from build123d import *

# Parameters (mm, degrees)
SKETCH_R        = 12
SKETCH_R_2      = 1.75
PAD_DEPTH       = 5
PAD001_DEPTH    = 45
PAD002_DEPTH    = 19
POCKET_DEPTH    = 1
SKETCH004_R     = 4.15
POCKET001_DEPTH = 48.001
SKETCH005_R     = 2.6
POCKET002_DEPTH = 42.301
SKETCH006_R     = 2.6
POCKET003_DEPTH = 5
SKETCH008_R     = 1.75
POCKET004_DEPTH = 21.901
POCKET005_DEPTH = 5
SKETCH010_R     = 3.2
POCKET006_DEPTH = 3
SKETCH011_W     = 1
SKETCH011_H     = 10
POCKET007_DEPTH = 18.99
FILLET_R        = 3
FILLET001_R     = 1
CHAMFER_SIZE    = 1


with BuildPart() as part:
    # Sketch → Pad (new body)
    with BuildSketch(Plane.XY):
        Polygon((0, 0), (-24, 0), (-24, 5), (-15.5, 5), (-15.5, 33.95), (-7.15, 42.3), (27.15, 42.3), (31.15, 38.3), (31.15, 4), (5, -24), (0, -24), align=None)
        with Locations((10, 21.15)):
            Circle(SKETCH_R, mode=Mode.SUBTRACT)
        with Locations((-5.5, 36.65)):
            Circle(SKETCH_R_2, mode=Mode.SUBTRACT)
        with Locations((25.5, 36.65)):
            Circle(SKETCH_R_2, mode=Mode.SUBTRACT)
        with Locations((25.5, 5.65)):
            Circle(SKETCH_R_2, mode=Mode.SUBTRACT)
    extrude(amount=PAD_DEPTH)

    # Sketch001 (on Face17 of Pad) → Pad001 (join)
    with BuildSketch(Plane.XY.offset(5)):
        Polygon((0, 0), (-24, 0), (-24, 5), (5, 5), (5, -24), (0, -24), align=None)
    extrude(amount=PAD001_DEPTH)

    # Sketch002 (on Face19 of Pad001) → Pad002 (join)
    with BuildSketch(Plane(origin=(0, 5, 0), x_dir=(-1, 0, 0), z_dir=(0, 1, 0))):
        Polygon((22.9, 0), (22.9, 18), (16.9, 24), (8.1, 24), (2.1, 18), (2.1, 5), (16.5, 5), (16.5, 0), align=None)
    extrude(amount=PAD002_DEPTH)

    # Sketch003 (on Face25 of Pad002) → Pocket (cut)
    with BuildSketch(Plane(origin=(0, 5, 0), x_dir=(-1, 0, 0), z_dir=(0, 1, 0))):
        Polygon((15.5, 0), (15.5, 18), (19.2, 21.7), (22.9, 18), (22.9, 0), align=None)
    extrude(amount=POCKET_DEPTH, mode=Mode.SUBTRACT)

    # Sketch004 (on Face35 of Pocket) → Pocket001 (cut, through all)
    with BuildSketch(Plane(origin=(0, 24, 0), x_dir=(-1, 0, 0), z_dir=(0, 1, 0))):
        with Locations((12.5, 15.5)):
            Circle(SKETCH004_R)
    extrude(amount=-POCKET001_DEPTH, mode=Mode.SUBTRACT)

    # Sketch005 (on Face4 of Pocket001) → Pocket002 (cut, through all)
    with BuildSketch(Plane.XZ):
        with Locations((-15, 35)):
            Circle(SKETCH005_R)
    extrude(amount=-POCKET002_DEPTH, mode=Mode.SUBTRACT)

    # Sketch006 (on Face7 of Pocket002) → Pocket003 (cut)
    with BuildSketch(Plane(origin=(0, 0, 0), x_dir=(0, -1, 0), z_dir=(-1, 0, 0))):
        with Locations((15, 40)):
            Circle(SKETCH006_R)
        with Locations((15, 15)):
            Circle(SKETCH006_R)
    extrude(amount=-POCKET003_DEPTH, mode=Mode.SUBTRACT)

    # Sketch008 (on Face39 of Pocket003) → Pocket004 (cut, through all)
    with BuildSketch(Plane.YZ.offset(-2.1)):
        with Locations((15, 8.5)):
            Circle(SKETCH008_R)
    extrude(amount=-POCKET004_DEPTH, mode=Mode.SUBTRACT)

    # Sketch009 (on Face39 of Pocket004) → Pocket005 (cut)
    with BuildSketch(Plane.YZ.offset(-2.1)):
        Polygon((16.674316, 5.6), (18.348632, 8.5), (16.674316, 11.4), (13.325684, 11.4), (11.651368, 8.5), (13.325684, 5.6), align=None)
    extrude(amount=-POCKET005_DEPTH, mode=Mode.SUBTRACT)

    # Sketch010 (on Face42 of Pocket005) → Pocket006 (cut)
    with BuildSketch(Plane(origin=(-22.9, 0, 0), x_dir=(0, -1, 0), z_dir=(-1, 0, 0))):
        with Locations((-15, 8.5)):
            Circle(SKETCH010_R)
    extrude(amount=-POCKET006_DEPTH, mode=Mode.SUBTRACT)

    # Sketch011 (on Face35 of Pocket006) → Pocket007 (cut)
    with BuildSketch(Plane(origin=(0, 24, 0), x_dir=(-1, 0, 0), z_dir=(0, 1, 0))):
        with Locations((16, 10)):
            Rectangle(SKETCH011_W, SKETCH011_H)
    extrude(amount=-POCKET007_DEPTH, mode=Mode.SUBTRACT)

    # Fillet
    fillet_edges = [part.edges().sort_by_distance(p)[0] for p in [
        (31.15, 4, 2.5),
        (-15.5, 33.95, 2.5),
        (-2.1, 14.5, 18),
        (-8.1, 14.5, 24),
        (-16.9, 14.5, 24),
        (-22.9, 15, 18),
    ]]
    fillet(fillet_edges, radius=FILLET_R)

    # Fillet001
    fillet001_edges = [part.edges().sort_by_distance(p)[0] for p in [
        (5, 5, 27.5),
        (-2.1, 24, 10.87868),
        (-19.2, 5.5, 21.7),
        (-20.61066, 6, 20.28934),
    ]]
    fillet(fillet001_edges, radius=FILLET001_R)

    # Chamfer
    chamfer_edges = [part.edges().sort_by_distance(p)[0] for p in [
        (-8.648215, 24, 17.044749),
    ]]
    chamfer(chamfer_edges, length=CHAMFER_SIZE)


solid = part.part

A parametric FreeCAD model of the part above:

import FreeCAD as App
import Part
import Sketcher
from FreeCAD import Vector
Q = App.Units.Quantity


def edges_at(feature, points):
    """Names of the edges that pass closest to the given points."""
    edges = feature.Shape.Edges
    near = lambda p: min(range(len(edges)), key=lambda i: edges[i].distToShape(Part.Vertex(*p))[0])
    return sorted({f"Edge{near(p) + 1}" for p in points})

doc = App.newDocument("Part")
body = doc.addObject("PartDesign::Body", "Body")

sketch1 = doc.addObject("Sketcher::SketchObject", "Sketch")
body.addObject(sketch1)
sketch1.AttachmentSupport = (doc.XY_Plane, [""])
sketch1.MapMode = "FlatFace"
sketch1.addGeometry([
    Part.LineSegment(Vector(-24, 0, 0), Vector(0, 0, 0)),
    Part.LineSegment(Vector(0, 0, 0), Vector(0, -24, 0)),
    Part.LineSegment(Vector(0, -24, 0), Vector(5, -24, 0)),
    Part.LineSegment(Vector(5, -24, 0), Vector(31.15, 4, 0)),
    Part.LineSegment(Vector(31.15, 4, 0), Vector(31.15, 38.3, 0)),
    Part.LineSegment(Vector(31.15, 38.3, 0), Vector(27.15, 42.3, 0)),
    Part.LineSegment(Vector(27.15, 42.3, 0), Vector(-7.15, 42.3, 0)),
    Part.LineSegment(Vector(-7.15, 42.3, 0), Vector(-15.5, 33.95, 0)),
    Part.LineSegment(Vector(-15.5, 33.95, 0), Vector(-15.5, 5, 0)),
    Part.LineSegment(Vector(-15.5, 5, 0), Vector(-24, 5, 0)),
    Part.LineSegment(Vector(-24, 5, 0), Vector(-24, 0, 0)),
    Part.Circle(Vector(25.5, 5.65, 0), Vector(0, 0, 1), 1.75),
    Part.Circle(Vector(25.5, 36.65, 0), Vector(0, 0, 1), 1.75),
    Part.Circle(Vector(10, 21.15, 0), Vector(0, 0, 1), 12),
    Part.Circle(Vector(-5.5, 36.65, 0), Vector(0, 0, 1), 1.75),
], False)
sketch1.addConstraint([
    Sketcher.Constraint("Coincident", 0, 2, 1, 1),
    Sketcher.Constraint("Coincident", 1, 2, 2, 1),
    Sketcher.Constraint("Coincident", 2, 2, 3, 1),
    Sketcher.Constraint("Coincident", 3, 2, 4, 1),
    Sketcher.Constraint("Coincident", 4, 2, 5, 1),
    Sketcher.Constraint("Coincident", 5, 2, 6, 1),
    Sketcher.Constraint("Coincident", 6, 2, 7, 1),
    Sketcher.Constraint("Coincident", 7, 2, 8, 1),
    Sketcher.Constraint("Coincident", 8, 2, 9, 1),
    Sketcher.Constraint("Coincident", 9, 2, 10, 1),
    Sketcher.Constraint("Coincident", 10, 2, 0, 1),
    Sketcher.Constraint("Horizontal", 0),
    Sketcher.Constraint("Vertical", 1),
    Sketcher.Constraint("Horizontal", 2),
    Sketcher.Constraint("Vertical", 4),
    Sketcher.Constraint("Horizontal", 6),
    Sketcher.Constraint("Vertical", 8),
    Sketcher.Constraint("Horizontal", 9),
    Sketcher.Constraint("Vertical", 10),
    Sketcher.Constraint("Coincident", 0, 2, -1, 1),
    Sketcher.Constraint("Equal", 11, 12),
    Sketcher.Constraint("Equal", 12, 14),
    Sketcher.Constraint("Perpendicular", 5, 7),
    Sketcher.Constraint("Horizontal", 12, 3, 14, 3),
    Sketcher.Constraint("Vertical", 11, 3, 12, 3),
    Sketcher.Constraint("Equal", 0, 1),
    Sketcher.Constraint("Equal", 6, 4),
    Sketcher.Constraint("Equal", 2, 10),
    Sketcher.Constraint("Diameter", 13, 24.0),
    Sketcher.Constraint("Diameter", 11, 3.5),
    Sketcher.Constraint("DistanceX", 0, 1, 0, 2, 24.0),
    Sketcher.Constraint("DistanceX", 2, 1, 2, 2, 5.0),
    Sketcher.Constraint("Angle", 5, Q("135 deg")),
    Sketcher.Constraint("DistanceX", 6, 2, 6, 1, 34.3),
    Sketcher.Constraint("DistanceX", 9, 2, 9, 1, 8.5),
    Sketcher.Constraint("DistanceX", -1, 1, 13, 3, 10.0),
    Sketcher.Constraint("DistanceY", -1, 1, 3, 2, 4.0),
    Sketcher.Constraint("DistanceY", 11, 3, 12, 3, 31.0),
    Sketcher.Constraint("DistanceX", 14, 3, 12, 3, 31.0),
    Sketcher.Constraint("DistanceX", 5, 2, 4, 2, 4.0),
    Sketcher.Constraint("DistanceX", 7, 2, 14, 3, 10.0),
    Sketcher.Constraint("DistanceY", 8, 2, 8, 1, 28.95),
    Sketcher.Constraint("DistanceY", 11, 3, 13, 3, 15.5),
    Sketcher.Constraint("DistanceY", 7, 2, 14, 3, 2.7),
])
pad1 = doc.addObject("PartDesign::Pad", "Pad")
body.addObject(pad1)
pad1.Profile = sketch1
pad1.Length = 5

sketch2 = doc.addObject("Sketcher::SketchObject", "Sketch001")
body.addObject(sketch2)
sketch2.AttachmentSupport = (doc.XY_Plane, [""])
sketch2.MapMode = "FlatFace"
sketch2.AttachmentOffset = App.Placement(Vector(0, 0, 5), App.Rotation())
sketch2.addGeometry([
    Part.LineSegment(Vector(-24, 0, 0), Vector(0, 0, 0)),
    Part.LineSegment(Vector(0, 0, 0), Vector(0, -24, 0)),
    Part.LineSegment(Vector(0, -24, 0), Vector(5, -24, 0)),
    Part.LineSegment(Vector(5, -24, 0), Vector(5, 5, 0)),
    Part.LineSegment(Vector(5, 5, 0), Vector(-24, 5, 0)),
    Part.LineSegment(Vector(-24, 5, 0), Vector(-24, 0, 0)),
], False)
sketch2.addConstraint([
    Sketcher.Constraint("Coincident", 0, 2, 1, 1),
    Sketcher.Constraint("Coincident", 1, 2, 2, 1),
    Sketcher.Constraint("Coincident", 2, 2, 3, 1),
    Sketcher.Constraint("Coincident", 3, 2, 4, 1),
    Sketcher.Constraint("Coincident", 4, 2, 5, 1),
    Sketcher.Constraint("Coincident", 5, 2, 0, 1),
    Sketcher.Constraint("Horizontal", 0),
    Sketcher.Constraint("Vertical", 1),
    Sketcher.Constraint("Horizontal", 2),
    Sketcher.Constraint("Vertical", 3),
    Sketcher.Constraint("Horizontal", 4),
    Sketcher.Constraint("Vertical", 5),
    Sketcher.Constraint("Coincident", 0, 2, -1, 1),
    Sketcher.Constraint("Equal", 0, 1),
    Sketcher.Constraint("Equal", 4, 3),
    Sketcher.Constraint("DistanceX", 0, 1, 0, 2, 24.0),
    Sketcher.Constraint("DistanceX", 2, 1, 2, 2, 5.0),
])
pad2 = doc.addObject("PartDesign::Pad", "Pad001")
body.addObject(pad2)
pad2.Profile = sketch2
pad2.Length = 45

sketch3 = doc.addObject("Sketcher::SketchObject", "Sketch002")
body.addObject(sketch3)
sketch3.AttachmentSupport = (doc.XZ_Plane, [""])
sketch3.MapMode = "FlatFace"
sketch3.AttachmentOffset = App.Placement(Vector(0, 0, -5), App.Rotation())
sketch3.addGeometry([
    Part.LineSegment(Vector(-22.9, 0, 0), Vector(-22.9, 18, 0)),
    Part.LineSegment(Vector(-22.9, 18, 0), Vector(-16.9, 24, 0)),
    Part.LineSegment(Vector(-16.9, 24, 0), Vector(-8.1, 24, 0)),
    Part.LineSegment(Vector(-8.1, 24, 0), Vector(-2.1, 18, 0)),
    Part.LineSegment(Vector(-2.1, 18, 0), Vector(-2.1, 5, 0)),
    Part.LineSegment(Vector(-2.1, 5, 0), Vector(-16.5, 5, 0)),
    Part.LineSegment(Vector(-16.5, 5, 0), Vector(-16.5, 0, 0)),
    Part.LineSegment(Vector(-16.5, 0, 0), Vector(-22.9, 0, 0)),
], False)
sketch3.addConstraint([
    Sketcher.Constraint("Coincident", 0, 2, 1, 1),
    Sketcher.Constraint("Coincident", 1, 2, 2, 1),
    Sketcher.Constraint("Coincident", 2, 2, 3, 1),
    Sketcher.Constraint("Coincident", 3, 2, 4, 1),
    Sketcher.Constraint("Coincident", 4, 2, 5, 1),
    Sketcher.Constraint("Coincident", 5, 2, 6, 1),
    Sketcher.Constraint("Coincident", 6, 2, 7, 1),
    Sketcher.Constraint("Coincident", 7, 2, 0, 1),
    Sketcher.Constraint("Vertical", 0),
    Sketcher.Constraint("Horizontal", 2),
    Sketcher.Constraint("Vertical", 4),
    Sketcher.Constraint("Horizontal", 5),
    Sketcher.Constraint("Vertical", 6),
    Sketcher.Constraint("Horizontal", 7),
    Sketcher.Constraint("PointOnObject", 6, 2, -1),
    Sketcher.Constraint("Perpendicular", 1, 3),
    Sketcher.Constraint("Horizontal", 0, 2, 3, 2),
    Sketcher.Constraint("Equal", 1, 3),
    Sketcher.Constraint("DistanceY", 0, 1, 0, 2, 18.0),
    Sketcher.Constraint("DistanceY", 4, 2, 4, 1, 13.0),
    Sketcher.Constraint("DistanceX", 2, 1, 2, 2, 8.8),
    Sketcher.Constraint("DistanceX", 5, 2, 5, 1, 14.4),
    Sketcher.Constraint("DistanceX", 7, 2, 7, 1, 6.4),
    Sketcher.Constraint("DistanceX", 0, 2, -1, 1, 22.9),
])
pad3 = doc.addObject("PartDesign::Pad", "Pad002")
body.addObject(pad3)
pad3.Profile = sketch3
pad3.Length = 19
pad3.Reversed = True

sketch4 = doc.addObject("Sketcher::SketchObject", "Sketch003")
body.addObject(sketch4)
sketch4.AttachmentSupport = (doc.XZ_Plane, [""])
sketch4.MapMode = "FlatFace"
sketch4.AttachmentOffset = App.Placement(Vector(0, 0, -5), App.Rotation())
sketch4.addGeometry([
    Part.LineSegment(Vector(-15.5, 18, 0), Vector(-15.5, 0, 0)),
    Part.LineSegment(Vector(-15.5, 0, 0), Vector(-22.9, 0, 0)),
    Part.LineSegment(Vector(-22.9, 0, 0), Vector(-22.9, 18, 0)),
    Part.LineSegment(Vector(-22.9, 18, 0), Vector(-19.2, 21.7, 0)),
    Part.LineSegment(Vector(-19.2, 21.7, 0), Vector(-15.5, 18, 0)),
], False)
sketch4.addConstraint([
    Sketcher.Constraint("Coincident", 0, 2, 1, 1),
    Sketcher.Constraint("Coincident", 1, 2, 2, 1),
    Sketcher.Constraint("Coincident", 2, 2, 3, 1),
    Sketcher.Constraint("Coincident", 3, 2, 4, 1),
    Sketcher.Constraint("Coincident", 4, 2, 0, 1),
    Sketcher.Constraint("Vertical", 0),
    Sketcher.Constraint("Horizontal", 1),
    Sketcher.Constraint("Vertical", 2),
    Sketcher.Constraint("PointOnObject", 0, 2, -1),
    Sketcher.Constraint("Perpendicular", 3, 4),
    Sketcher.Constraint("Horizontal", 2, 2, 4, 2),
    Sketcher.Constraint("Equal", 3, 4),
    Sketcher.Constraint("DistanceY", 0, 2, 0, 1, 18.0),
    Sketcher.Constraint("DistanceX", 1, 2, 1, 1, 7.4),
    Sketcher.Constraint("DistanceX", 0, 2, -1, 1, 15.5),
])
pocket1 = doc.addObject("PartDesign::Pocket", "Pocket")
body.addObject(pocket1)
pocket1.Profile = sketch4
pocket1.Length = 1

sketch5 = doc.addObject("Sketcher::SketchObject", "Sketch004")
body.addObject(sketch5)
sketch5.AttachmentSupport = (doc.XZ_Plane, [""])
sketch5.MapMode = "FlatFace"
sketch5.AttachmentOffset = App.Placement(Vector(0, 0, -24), App.Rotation())
sketch5.addGeometry(Part.Circle(Vector(-12.5, 15.5, 0), Vector(0, 0, 1), 4.15), False)
sketch5.addConstraint([
    Sketcher.Constraint("Diameter", 0, 8.3),
    Sketcher.Constraint("DistanceX", 0, 3, -1, 1, 12.5),
    Sketcher.Constraint("DistanceY", -1, 1, 0, 3, 15.5),
])
pocket2 = doc.addObject("PartDesign::Pocket", "Pocket001")
body.addObject(pocket2)
pocket2.Profile = sketch5
pocket2.Type = "ThroughAll"
pocket2.Reversed = True

sketch6 = doc.addObject("Sketcher::SketchObject", "Sketch005")
body.addObject(sketch6)
sketch6.AttachmentSupport = (doc.XZ_Plane, [""])
sketch6.MapMode = "FlatFace"
sketch6.addGeometry(Part.Circle(Vector(-15, 35, 0), Vector(0, 0, 1), 2.6), False)
sketch6.addConstraint([
    Sketcher.Constraint("Diameter", 0, 5.2),
    Sketcher.Constraint("DistanceX", 0, 3, -1, 1, 15.0),
    Sketcher.Constraint("DistanceY", -1, 1, 0, 3, 35.0),
])
pocket3 = doc.addObject("PartDesign::Pocket", "Pocket002")
body.addObject(pocket3)
pocket3.Profile = sketch6
pocket3.Type = "ThroughAll"

sketch7 = doc.addObject("Sketcher::SketchObject", "Sketch006")
body.addObject(sketch7)
sketch7.AttachmentSupport = (doc.YZ_Plane, [""])
sketch7.MapMode = "FlatFace"
sketch7.addGeometry([
    Part.Circle(Vector(-15, 40, 0), Vector(0, 0, 1), 2.6),
    Part.Circle(Vector(-15, 15, 0), Vector(0, 0, 1), 2.6),
], False)
sketch7.addConstraint([
    Sketcher.Constraint("Equal", 0, 1),
    Sketcher.Constraint("Vertical", 0, 3, 1, 3),
    Sketcher.Constraint("Diameter", 0, 5.2),
    Sketcher.Constraint("DistanceX", 0, 3, -1, 1, 15.0),
    Sketcher.Constraint("DistanceY", -1, 1, 0, 3, 40.0),
    Sketcher.Constraint("DistanceY", -1, 1, 1, 3, 15.0),
])
pocket4 = doc.addObject("PartDesign::Pocket", "Pocket003")
body.addObject(pocket4)
pocket4.Profile = sketch7
pocket4.Length = 5
pocket4.Reversed = True

sketch8 = doc.addObject("Sketcher::SketchObject", "Sketch007")
body.addObject(sketch8)
sketch8.AttachmentSupport = (doc.YZ_Plane, [""])
sketch8.MapMode = "FlatFace"
sketch8.AttachmentOffset = App.Placement(Vector(0, 0, -2.1), App.Rotation())
sketch8.addGeometry(Part.Circle(Vector(15, 8.5, 0), Vector(0, 0, 1), 1.75), False)
sketch8.addConstraint([
    Sketcher.Constraint("Diameter", 0, 3.5),
    Sketcher.Constraint("DistanceX", -1, 1, 0, 3, 15.0),
    Sketcher.Constraint("DistanceY", -1, 1, 0, 3, 8.5),
])
pocket5 = doc.addObject("PartDesign::Pocket", "Pocket004")
body.addObject(pocket5)
pocket5.Profile = sketch8
pocket5.Type = "ThroughAll"

sketch9 = doc.addObject("Sketcher::SketchObject", "Sketch008")
body.addObject(sketch9)
sketch9.AttachmentSupport = (doc.YZ_Plane, [""])
sketch9.MapMode = "FlatFace"
sketch9.AttachmentOffset = App.Placement(Vector(0, 0, -2.1), App.Rotation())
sketch9.addGeometry([
    Part.LineSegment(Vector(16.674316, 5.6, 0), Vector(18.348632, 8.5, 0)),
    Part.LineSegment(Vector(18.348632, 8.5, 0), Vector(16.674316, 11.4, 0)),
    Part.LineSegment(Vector(16.674316, 11.4, 0), Vector(13.325684, 11.4, 0)),
    Part.LineSegment(Vector(13.325684, 11.4, 0), Vector(11.651368, 8.5, 0)),
    Part.LineSegment(Vector(11.651368, 8.5, 0), Vector(13.325684, 5.6, 0)),
    Part.LineSegment(Vector(13.325684, 5.6, 0), Vector(16.674316, 5.6, 0)),
], False)
sketch9.addConstraint([
    Sketcher.Constraint("Coincident", 0, 2, 1, 1),
    Sketcher.Constraint("Coincident", 1, 2, 2, 1),
    Sketcher.Constraint("Coincident", 2, 2, 3, 1),
    Sketcher.Constraint("Coincident", 3, 2, 4, 1),
    Sketcher.Constraint("Coincident", 4, 2, 5, 1),
    Sketcher.Constraint("Coincident", 5, 2, 0, 1),
    Sketcher.Constraint("Horizontal", 2),
    Sketcher.Constraint("Horizontal", 5),
    Sketcher.Constraint("Parallel", 0, 3),
    Sketcher.Constraint("Parallel", 1, 4),
    Sketcher.Constraint("Horizontal", 0, 2, 3, 2),
    Sketcher.Constraint("Vertical", 2, 2, 4, 2),
    Sketcher.Constraint("Vertical", 1, 2, 5, 2),
    Sketcher.Constraint("Angle", 0, Q("59.999997 deg")),
    Sketcher.Constraint("DistanceY", -1, 1, 0, 2, 8.5),
    Sketcher.Constraint("DistanceY", -1, 1, 1, 2, 11.4),
    Sketcher.Constraint("DistanceX", 2, 2, 2, 1, 3.348632),
    Sketcher.Constraint("DistanceX", -1, 1, 0, 2, 18.348632),
])
pocket6 = doc.addObject("PartDesign::Pocket", "Pocket005")
body.addObject(pocket6)
pocket6.Profile = sketch9
pocket6.Length = 5

sketch10 = doc.addObject("Sketcher::SketchObject", "Sketch009")
body.addObject(sketch10)
sketch10.AttachmentSupport = (doc.YZ_Plane, [""])
sketch10.MapMode = "FlatFace"
sketch10.AttachmentOffset = App.Placement(Vector(0, 0, -22.9), App.Rotation())
sketch10.addGeometry(Part.Circle(Vector(15, 8.5, 0), Vector(0, 0, 1), 3.2), False)
sketch10.addConstraint([
    Sketcher.Constraint("Diameter", 0, 6.4),
    Sketcher.Constraint("DistanceX", -1, 1, 0, 3, 15.0),
    Sketcher.Constraint("DistanceY", -1, 1, 0, 3, 8.5),
])
pocket7 = doc.addObject("PartDesign::Pocket", "Pocket006")
body.addObject(pocket7)
pocket7.Profile = sketch10
pocket7.Length = 3
pocket7.Reversed = True

sketch11 = doc.addObject("Sketcher::SketchObject", "Sketch010")
body.addObject(sketch11)
sketch11.AttachmentSupport = (doc.XZ_Plane, [""])
sketch11.MapMode = "FlatFace"
sketch11.AttachmentOffset = App.Placement(Vector(0, 0, -24), App.Rotation())
sketch11.addGeometry([
    Part.LineSegment(Vector(-15.5, 15, 0), Vector(-15.5, 5, 0)),
    Part.LineSegment(Vector(-15.5, 5, 0), Vector(-16.5, 5, 0)),
    Part.LineSegment(Vector(-16.5, 5, 0), Vector(-16.5, 15, 0)),
    Part.LineSegment(Vector(-16.5, 15, 0), Vector(-15.5, 15, 0)),
], False)
sketch11.addConstraint([
    Sketcher.Constraint("Coincident", 0, 2, 1, 1),
    Sketcher.Constraint("Coincident", 1, 2, 2, 1),
    Sketcher.Constraint("Coincident", 2, 2, 3, 1),
    Sketcher.Constraint("Coincident", 3, 2, 0, 1),
    Sketcher.Constraint("Vertical", 0),
    Sketcher.Constraint("Horizontal", 1),
    Sketcher.Constraint("Vertical", 2),
    Sketcher.Constraint("Horizontal", 3),
    Sketcher.Constraint("DistanceX", 1, 2, 1, 1, 1.0),
    Sketcher.Constraint("DistanceY", 0, 2, 0, 1, 10.0),
    Sketcher.Constraint("DistanceY", -1, 1, 0, 2, 5.0),
    Sketcher.Constraint("DistanceX", 0, 2, -1, 1, 15.5),
])
pocket8 = doc.addObject("PartDesign::Pocket", "Pocket007")
body.addObject(pocket8)
pocket8.Profile = sketch11
pocket8.Length = 18.99
pocket8.Reversed = True
doc.recompute()

fillet = doc.addObject("PartDesign::Fillet", "Fillet")
body.addObject(fillet)
fillet.Base = (pocket8, edges_at(pocket8, [
    (31.15, 4, 2.5),
    (-15.5, 33.95, 2.5),
    (-2.1, 14.5, 18),
    (-8.1, 14.5, 24),
    (-16.9, 14.5, 24),
    (-22.9, 15, 18),
]))
fillet.Radius = 3
doc.recompute()

fillet2 = doc.addObject("PartDesign::Fillet", "Fillet001")
body.addObject(fillet2)
fillet2.Base = (fillet, edges_at(fillet, [
    (5, 5, 27.5),
    (-2.1, 24, 10.879),
    (-19.2, 5.5, 21.7),
    (-20.611, 6, 20.289),
]))
fillet2.Radius = 1
doc.recompute()

chamfer = doc.addObject("PartDesign::Chamfer", "Chamfer")
body.addObject(chamfer)
chamfer.Base = (fillet2, edges_at(fillet2, [(-8.648, 24, 17.045)]))
chamfer.Size = 1

doc.recompute()
